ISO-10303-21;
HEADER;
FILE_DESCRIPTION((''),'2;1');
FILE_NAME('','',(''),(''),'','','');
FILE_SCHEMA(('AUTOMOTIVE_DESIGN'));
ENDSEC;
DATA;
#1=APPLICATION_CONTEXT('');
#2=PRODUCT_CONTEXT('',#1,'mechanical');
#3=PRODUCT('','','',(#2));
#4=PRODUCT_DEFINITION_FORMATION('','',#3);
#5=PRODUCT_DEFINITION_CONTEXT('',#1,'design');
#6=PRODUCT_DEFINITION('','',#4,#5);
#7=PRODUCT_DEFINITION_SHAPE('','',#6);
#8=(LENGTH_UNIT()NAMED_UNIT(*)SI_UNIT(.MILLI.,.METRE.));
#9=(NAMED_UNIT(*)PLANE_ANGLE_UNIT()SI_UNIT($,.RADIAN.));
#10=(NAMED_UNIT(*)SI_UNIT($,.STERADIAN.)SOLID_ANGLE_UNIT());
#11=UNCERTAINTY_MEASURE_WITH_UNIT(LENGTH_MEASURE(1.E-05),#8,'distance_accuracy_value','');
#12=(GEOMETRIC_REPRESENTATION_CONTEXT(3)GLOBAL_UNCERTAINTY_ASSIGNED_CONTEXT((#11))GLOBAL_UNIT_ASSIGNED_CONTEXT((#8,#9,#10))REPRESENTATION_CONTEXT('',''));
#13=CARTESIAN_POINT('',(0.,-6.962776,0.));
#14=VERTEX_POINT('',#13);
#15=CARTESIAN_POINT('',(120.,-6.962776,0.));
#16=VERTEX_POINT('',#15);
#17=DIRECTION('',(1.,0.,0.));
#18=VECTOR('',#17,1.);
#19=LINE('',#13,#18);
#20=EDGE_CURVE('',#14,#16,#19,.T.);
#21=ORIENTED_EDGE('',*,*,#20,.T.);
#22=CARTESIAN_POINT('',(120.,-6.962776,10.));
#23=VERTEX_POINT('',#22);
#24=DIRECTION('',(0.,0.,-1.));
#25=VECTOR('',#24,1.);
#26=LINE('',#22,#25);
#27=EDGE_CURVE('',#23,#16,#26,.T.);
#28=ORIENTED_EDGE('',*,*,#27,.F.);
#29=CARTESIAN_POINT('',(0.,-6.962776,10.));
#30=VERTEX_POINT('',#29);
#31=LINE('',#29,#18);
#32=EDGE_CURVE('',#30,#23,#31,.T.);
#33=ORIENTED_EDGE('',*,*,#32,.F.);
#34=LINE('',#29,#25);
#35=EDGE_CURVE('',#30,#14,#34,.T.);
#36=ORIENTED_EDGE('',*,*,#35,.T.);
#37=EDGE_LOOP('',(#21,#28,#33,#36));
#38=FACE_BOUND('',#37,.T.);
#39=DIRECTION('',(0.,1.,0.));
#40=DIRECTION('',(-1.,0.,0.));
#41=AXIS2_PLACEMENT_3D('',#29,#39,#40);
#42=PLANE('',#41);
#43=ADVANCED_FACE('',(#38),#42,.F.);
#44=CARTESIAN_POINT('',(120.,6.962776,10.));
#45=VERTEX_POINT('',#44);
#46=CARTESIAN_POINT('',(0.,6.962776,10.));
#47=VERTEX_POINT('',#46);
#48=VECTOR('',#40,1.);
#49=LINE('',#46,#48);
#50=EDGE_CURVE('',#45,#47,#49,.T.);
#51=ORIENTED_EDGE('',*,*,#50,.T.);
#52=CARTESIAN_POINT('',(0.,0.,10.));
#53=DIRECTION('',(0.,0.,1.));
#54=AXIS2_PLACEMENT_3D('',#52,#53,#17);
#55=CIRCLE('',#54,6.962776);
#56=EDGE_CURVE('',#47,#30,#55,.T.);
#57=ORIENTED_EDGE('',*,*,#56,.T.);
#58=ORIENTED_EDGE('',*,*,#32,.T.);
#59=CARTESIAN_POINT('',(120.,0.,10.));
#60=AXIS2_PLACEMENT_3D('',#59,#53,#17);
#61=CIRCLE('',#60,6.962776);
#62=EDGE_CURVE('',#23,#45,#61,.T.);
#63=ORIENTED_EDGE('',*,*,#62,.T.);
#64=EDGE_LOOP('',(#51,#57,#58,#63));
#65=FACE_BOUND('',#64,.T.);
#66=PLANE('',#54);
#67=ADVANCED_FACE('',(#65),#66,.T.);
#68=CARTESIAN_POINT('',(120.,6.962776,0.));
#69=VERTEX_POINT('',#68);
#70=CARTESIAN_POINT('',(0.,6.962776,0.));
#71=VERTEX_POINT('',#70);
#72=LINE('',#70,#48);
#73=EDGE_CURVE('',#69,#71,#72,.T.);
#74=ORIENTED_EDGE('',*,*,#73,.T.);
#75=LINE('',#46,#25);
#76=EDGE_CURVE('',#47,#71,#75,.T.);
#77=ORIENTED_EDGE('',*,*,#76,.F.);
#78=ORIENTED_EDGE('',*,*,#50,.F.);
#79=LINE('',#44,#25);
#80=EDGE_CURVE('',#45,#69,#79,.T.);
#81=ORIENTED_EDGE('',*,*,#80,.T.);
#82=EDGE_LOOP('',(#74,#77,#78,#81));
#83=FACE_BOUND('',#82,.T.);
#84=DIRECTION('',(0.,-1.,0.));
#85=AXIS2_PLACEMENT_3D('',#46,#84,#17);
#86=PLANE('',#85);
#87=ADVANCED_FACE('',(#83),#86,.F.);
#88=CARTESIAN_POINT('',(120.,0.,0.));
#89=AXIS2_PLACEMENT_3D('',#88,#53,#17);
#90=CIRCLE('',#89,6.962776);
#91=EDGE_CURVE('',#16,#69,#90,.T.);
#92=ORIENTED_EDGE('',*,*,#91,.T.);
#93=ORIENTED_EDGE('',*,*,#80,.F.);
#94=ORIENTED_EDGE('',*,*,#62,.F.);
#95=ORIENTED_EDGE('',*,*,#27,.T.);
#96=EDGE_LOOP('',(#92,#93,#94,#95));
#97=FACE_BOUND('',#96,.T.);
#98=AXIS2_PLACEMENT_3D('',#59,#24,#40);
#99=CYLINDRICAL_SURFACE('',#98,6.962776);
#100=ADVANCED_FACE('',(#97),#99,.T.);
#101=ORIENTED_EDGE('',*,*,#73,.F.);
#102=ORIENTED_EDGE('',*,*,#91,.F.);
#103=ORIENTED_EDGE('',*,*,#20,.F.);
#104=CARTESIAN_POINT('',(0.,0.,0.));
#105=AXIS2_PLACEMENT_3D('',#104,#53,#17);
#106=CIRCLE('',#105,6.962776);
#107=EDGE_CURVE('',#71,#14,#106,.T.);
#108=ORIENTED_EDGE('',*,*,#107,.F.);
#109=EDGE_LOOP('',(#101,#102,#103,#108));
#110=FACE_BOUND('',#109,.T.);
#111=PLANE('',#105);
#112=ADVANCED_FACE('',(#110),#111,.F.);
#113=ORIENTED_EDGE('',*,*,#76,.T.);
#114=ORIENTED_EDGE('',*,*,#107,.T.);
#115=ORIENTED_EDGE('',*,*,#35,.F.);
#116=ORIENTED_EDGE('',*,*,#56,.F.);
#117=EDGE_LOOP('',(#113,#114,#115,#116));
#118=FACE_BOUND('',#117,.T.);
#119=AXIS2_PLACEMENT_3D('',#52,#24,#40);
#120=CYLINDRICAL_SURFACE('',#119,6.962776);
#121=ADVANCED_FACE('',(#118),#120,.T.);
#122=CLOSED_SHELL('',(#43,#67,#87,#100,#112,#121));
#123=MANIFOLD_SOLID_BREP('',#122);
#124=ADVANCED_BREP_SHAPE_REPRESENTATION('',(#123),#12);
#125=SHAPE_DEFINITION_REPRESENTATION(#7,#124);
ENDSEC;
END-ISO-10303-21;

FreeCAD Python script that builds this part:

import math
import FreeCAD as App
import Part
import Sketcher

V = App.Vector

doc = App.newDocument("Part")
body = doc.addObject("PartDesign::Body", "Body")

# Sketch on XY plane
sketch1 = doc.addObject("Sketcher::SketchObject", "Sketch")
body.addObject(sketch1)
sketch1.AttachmentSupport = (doc.XY_Plane, [""])
sketch1.MapMode = "FlatFace"
sketch1.addGeometry(Part.LineSegment(V(120, 7, 0), V(0, 7, 0)), False)
sketch1.addGeometry(Part.ArcOfCircle(Part.Circle(V(0, 0, 0), V(0, 0, 1), 7), math.radians(90), math.radians(270)), False)
sketch1.addGeometry(Part.LineSegment(V(0, -7, 0), V(120, -7, 0)), False)
sketch1.addGeometry(Part.ArcOfCircle(Part.Circle(V(120, 0, 0), V(0, 0, 1), 7), math.radians(-90), math.radians(90)), False)
sketch1.addConstraint(Sketcher.Constraint("Tangent", 0, 2, 1, 1))
sketch1.addConstraint(Sketcher.Constraint("Tangent", 1, 2, 2, 1))
sketch1.addConstraint(Sketcher.Constraint("Tangent", 2, 2, 3, 1))
sketch1.addConstraint(Sketcher.Constraint("Tangent", 3, 2, 0, 1))
sketch1.addConstraint(Sketcher.Constraint("Horizontal", 0))
sketch1.addConstraint(Sketcher.Constraint("Horizontal", 2))
sketch1.addConstraint(Sketcher.Constraint("Coincident", 1, 3, -1, 1))
sketch1.addConstraint(Sketcher.Constraint("DistanceX", 0, 2, 0, 1, 120.0))
sketch1.addConstraint(Sketcher.Constraint("Radius", 1, 6.962776))
pad1 = doc.addObject("PartDesign::Pad", "Pad")
body.addObject(pad1)
pad1.Profile = sketch1
pad1.Length = 10

doc.recompute()
